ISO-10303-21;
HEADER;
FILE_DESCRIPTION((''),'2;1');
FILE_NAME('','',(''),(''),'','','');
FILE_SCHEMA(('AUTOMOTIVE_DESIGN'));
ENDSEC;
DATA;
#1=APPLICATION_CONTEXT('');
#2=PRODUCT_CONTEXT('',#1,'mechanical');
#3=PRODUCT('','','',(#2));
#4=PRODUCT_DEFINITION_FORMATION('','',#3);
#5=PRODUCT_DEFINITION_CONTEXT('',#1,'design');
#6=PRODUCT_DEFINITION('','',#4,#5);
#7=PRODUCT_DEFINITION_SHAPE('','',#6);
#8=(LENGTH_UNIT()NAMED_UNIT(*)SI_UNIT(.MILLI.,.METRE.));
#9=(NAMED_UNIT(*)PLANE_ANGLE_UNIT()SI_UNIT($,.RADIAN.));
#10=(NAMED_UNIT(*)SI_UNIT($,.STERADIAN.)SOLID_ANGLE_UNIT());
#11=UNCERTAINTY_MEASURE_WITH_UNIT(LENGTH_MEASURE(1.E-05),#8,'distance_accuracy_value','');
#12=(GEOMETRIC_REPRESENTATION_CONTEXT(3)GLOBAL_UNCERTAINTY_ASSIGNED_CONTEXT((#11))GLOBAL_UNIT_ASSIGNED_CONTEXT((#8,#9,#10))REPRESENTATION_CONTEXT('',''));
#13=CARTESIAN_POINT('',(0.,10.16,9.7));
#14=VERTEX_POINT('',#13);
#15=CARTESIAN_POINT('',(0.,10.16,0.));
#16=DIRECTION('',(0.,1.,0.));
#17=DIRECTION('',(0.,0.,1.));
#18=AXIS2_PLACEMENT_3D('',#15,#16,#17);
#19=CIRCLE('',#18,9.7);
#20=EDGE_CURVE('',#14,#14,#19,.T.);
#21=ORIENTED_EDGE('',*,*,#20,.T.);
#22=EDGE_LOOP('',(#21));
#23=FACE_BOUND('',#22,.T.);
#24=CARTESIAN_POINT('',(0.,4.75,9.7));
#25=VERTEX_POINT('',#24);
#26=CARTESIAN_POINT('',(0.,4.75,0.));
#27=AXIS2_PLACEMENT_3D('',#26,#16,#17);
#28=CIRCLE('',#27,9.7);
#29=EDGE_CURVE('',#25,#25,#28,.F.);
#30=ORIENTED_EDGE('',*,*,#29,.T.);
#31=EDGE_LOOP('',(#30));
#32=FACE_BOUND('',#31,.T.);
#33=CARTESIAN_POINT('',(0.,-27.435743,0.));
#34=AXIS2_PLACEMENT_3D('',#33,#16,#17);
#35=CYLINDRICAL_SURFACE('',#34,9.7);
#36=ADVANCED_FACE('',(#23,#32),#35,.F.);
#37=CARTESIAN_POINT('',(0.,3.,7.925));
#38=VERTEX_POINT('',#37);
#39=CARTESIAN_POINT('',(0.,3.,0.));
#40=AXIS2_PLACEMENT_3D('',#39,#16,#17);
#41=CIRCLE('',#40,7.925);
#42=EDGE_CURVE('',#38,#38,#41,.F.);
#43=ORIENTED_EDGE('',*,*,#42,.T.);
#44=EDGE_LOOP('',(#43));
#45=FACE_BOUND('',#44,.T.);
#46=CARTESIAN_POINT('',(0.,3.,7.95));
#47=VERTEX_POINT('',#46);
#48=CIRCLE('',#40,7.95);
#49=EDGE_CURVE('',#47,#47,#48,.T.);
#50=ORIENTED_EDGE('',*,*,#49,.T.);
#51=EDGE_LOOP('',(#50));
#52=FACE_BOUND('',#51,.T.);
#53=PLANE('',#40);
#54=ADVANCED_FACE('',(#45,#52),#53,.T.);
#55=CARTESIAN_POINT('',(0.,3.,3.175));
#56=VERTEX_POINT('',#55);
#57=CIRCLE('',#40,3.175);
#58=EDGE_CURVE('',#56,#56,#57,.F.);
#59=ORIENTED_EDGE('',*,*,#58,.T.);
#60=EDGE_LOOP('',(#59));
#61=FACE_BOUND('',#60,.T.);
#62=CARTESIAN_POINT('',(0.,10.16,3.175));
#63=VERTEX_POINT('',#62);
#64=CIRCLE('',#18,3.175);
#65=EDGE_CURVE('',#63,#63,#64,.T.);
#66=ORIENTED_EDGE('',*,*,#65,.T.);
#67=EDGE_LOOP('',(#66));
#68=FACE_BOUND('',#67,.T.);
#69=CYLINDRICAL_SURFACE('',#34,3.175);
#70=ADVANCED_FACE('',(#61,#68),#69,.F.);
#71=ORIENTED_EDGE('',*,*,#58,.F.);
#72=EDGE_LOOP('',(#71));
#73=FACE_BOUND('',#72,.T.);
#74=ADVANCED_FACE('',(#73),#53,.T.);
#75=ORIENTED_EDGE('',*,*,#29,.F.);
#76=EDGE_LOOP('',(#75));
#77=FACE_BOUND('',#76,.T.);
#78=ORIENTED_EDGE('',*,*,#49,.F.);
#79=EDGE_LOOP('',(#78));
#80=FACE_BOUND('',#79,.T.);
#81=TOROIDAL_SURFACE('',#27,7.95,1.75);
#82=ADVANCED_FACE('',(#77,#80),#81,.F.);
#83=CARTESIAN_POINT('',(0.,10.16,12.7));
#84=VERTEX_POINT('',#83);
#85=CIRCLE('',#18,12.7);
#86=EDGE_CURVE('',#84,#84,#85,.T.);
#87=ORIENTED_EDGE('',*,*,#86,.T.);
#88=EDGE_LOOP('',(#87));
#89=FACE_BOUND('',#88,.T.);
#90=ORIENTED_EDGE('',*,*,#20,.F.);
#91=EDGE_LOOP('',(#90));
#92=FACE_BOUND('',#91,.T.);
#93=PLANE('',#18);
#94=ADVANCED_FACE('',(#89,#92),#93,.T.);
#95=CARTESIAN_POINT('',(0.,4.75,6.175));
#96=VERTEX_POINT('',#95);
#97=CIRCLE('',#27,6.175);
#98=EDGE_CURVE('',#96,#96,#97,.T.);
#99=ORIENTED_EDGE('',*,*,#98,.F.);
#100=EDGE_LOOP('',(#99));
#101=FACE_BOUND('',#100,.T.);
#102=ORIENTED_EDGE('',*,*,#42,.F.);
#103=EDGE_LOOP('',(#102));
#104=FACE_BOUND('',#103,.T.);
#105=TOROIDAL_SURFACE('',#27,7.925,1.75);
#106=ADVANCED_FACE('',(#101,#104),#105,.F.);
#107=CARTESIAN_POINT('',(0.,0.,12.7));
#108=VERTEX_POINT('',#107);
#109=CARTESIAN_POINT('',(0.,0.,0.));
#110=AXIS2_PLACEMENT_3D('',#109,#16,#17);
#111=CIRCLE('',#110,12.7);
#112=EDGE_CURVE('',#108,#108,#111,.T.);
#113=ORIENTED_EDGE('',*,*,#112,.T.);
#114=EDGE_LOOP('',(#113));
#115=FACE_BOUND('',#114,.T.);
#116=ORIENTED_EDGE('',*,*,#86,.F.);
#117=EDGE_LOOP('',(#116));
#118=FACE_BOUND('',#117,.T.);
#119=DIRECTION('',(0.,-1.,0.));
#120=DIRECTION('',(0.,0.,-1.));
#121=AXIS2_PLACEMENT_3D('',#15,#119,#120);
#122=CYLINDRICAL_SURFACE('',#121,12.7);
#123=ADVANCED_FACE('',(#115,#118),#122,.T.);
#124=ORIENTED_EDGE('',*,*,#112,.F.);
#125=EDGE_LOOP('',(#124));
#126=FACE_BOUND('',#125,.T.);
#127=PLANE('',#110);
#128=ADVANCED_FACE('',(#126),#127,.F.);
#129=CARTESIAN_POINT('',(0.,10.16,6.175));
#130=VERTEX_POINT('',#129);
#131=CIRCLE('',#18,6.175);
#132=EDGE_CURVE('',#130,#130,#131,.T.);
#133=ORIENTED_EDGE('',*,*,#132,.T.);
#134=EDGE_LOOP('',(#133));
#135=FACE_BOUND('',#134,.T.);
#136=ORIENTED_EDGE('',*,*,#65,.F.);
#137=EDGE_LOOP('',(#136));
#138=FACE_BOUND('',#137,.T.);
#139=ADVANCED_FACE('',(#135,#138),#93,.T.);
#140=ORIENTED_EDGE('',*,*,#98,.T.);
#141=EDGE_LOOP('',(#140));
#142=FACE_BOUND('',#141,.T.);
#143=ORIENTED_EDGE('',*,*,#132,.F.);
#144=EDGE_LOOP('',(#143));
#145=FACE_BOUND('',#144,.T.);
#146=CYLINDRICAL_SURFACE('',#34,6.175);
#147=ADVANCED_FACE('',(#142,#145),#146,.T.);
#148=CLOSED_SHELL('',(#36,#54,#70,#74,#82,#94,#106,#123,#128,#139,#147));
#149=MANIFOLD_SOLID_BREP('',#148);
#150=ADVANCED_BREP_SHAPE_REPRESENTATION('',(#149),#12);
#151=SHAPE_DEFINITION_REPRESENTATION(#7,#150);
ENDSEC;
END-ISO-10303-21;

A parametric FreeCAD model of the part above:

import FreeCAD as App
import Part
import Sketcher
Q = App.Units.Quantity


def edges_at(feature, points):
    """Names of the edges that pass closest to the given points."""
    edges = feature.Shape.Edges
    near = lambda p: min(range(len(edges)), key=lambda i: edges[i].distToShape(Part.Vertex(*p))[0])
    return sorted({f"Edge{near(p) + 1}" for p in points})

doc = App.newDocument("Part")
body = doc.addObject("PartDesign::Body", "Body")

# Sketch on XZ plane
sketch1 = body.newObject("Sketcher::SketchObject", "Sketch")
sketch1.AttachmentSupport = (doc.getObject("XZ_Plane"), [""])
sketch1.MapMode = "FlatFace"
sketch1.addGeometry(Part.Circle(App.Vector(0, 0, 0), App.Vector(0, 0, 1), 13), False)
sketch1.addConstraint([
    Sketcher.Constraint("Coincident", 0, 3, -1, 1),
    Sketcher.Constraint("Diameter", 0, Q("1 in")),
])
pad1 = body.newObject("PartDesign::Pad", "Pad")
pad1.Profile = sketch1
pad1.Length = Q("0.4 in")
pad1.Reversed = True

# Sketch on XZ plane
sketch2 = body.newObject("Sketcher::SketchObject", "Sketch001")
sketch2.AttachmentSupport = (doc.getObject("XZ_Plane"), [""])
sketch2.MapMode = "FlatFace"
sketch2.AttachmentOffset = App.Placement(App.Vector(0, 0, -0.4 * 25.4), App.Rotation())
sketch2.addGeometry([
    Part.Circle(App.Vector(0, 0, 0), App.Vector(0, 0, 1), 9.7),
    Part.Circle(App.Vector(0, 0, 0), App.Vector(0, 0, 1), 6.2),
    Part.Circle(App.Vector(0, 0, 0), App.Vector(0, 0, 1), 3.2),
], False)
sketch2.addConstraint([
    Sketcher.Constraint("Coincident", 0, 3, -1, 1),
    Sketcher.Constraint("Coincident", 1, 3, -1, 1),
    Sketcher.Constraint("Coincident", 2, 3, -1, 1),
    Sketcher.Constraint("Diameter", 2, Q("0.25 in")),
    Sketcher.Constraint("Diameter", 0, Q("19.4 mm")),
    Sketcher.Constraint("Diameter", 1, Q("12.35 mm")),
])
pocket1 = body.newObject("PartDesign::Pocket", "Pocket")
pocket1.Profile = sketch2
pocket1.Length = 7.16
pocket1.Reversed = True
doc.recompute()

fillet = body.newObject("PartDesign::Fillet", "Fillet")
fillet.Base = (pocket1, edges_at(pocket1, [(0, 3, -6.175), (0, 3, -9.7)]))
fillet.Radius = 1.75

doc.recompute()
